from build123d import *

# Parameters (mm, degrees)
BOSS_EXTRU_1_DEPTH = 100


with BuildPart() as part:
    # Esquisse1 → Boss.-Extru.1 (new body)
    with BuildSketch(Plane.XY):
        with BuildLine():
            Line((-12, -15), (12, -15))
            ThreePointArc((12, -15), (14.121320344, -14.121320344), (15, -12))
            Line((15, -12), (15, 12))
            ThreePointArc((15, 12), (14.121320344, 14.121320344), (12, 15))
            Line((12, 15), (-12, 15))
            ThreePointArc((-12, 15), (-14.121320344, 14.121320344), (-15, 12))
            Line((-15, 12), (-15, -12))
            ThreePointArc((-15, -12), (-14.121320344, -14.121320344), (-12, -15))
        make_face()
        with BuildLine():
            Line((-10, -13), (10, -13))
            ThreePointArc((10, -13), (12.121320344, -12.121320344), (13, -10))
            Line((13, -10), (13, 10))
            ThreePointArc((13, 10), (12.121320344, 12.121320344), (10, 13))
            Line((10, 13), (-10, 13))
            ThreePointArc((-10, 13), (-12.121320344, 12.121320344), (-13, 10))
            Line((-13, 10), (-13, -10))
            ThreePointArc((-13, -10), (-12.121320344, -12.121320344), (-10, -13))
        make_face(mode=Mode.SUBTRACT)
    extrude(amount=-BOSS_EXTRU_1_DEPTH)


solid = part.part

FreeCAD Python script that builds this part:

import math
import FreeCAD as App
import Part
import Sketcher

V = App.Vector

doc = App.newDocument("Part")
body = doc.addObject("PartDesign::Body", "Body")

sketch1 = body.newObject("Sketcher::SketchObject", "Sketch")
sketch1.AttachmentSupport = (doc.getObject("XY_Plane"), [""])
sketch1.MapMode = "FlatFace"
sketch1.addGeometry([
    Part.LineSegment(V(-12, -15, 0), V(12, -15, 0)),
    Part.ArcOfCircle(Part.Circle(V(12, -12, 0), V(0, 0, 1), 3), math.radians(-90), math.radians(0)),
    Part.LineSegment(V(15, -12, 0), V(15, 12, 0)),
    Part.ArcOfCircle(Part.Circle(V(12, 12, 0), V(0, 0, 1), 3), math.radians(0), math.radians(90)),
    Part.LineSegment(V(12, 15, 0), V(-12, 15, 0)),
    Part.ArcOfCircle(Part.Circle(V(-12, 12, 0), V(0, 0, 1), 3), math.radians(90), math.radians(180)),
    Part.LineSegment(V(-15, 12, 0), V(-15, -12, 0)),
    Part.ArcOfCircle(Part.Circle(V(-12, -12, 0), V(0, 0, 1), 3), math.radians(180), math.radians(270)),
    Part.LineSegment(V(10, -13, 0), V(-10, -13, 0)),
    Part.ArcOfCircle(Part.Circle(V(-10, -10, 0), V(0, 0, 1), 3), math.radians(180), math.radians(270)),
    Part.LineSegment(V(-13, -10, 0), V(-13, 10, 0)),
    Part.ArcOfCircle(Part.Circle(V(-10, 10, 0), V(0, 0, 1), 3), math.radians(90), math.radians(180)),
    Part.LineSegment(V(-10, 13, 0), V(10, 13, 0)),
    Part.ArcOfCircle(Part.Circle(V(10, 10, 0), V(0, 0, 1), 3), math.radians(0), math.radians(90)),
    Part.LineSegment(V(13, 10, 0), V(13, -10, 0)),
    Part.ArcOfCircle(Part.Circle(V(10, -10, 0), V(0, 0, 1), 3), math.radians(-90), math.radians(0)),
], False)
sketch1.addConstraint([
    Sketcher.Constraint("Tangent", 0, 2, 1, 1),
    Sketcher.Constraint("Tangent", 1, 2, 2, 1),
    Sketcher.Constraint("Tangent", 2, 2, 3, 1),
    Sketcher.Constraint("Tangent", 3, 2, 4, 1),
    Sketcher.Constraint("Tangent", 4, 2, 5, 1),
    Sketcher.Constraint("Tangent", 5, 2, 6, 1),
    Sketcher.Constraint("Tangent", 6, 2, 7, 1),
    Sketcher.Constraint("Tangent", 7, 2, 0, 1),
    Sketcher.Constraint("Tangent", 8, 2, 9, 2),
    Sketcher.Constraint("Tangent", 9, 1, 10, 1),
    Sketcher.Constraint("Tangent", 10, 2, 11, 2),
    Sketcher.Constraint("Tangent", 11, 1, 12, 1),
    Sketcher.Constraint("Tangent", 12, 2, 13, 2),
    Sketcher.Constraint("Tangent", 13, 1, 14, 1),
    Sketcher.Constraint("Tangent", 14, 2, 15, 2),
    Sketcher.Constraint("Tangent", 15, 1, 8, 1),
    Sketcher.Constraint("Horizontal", 0),
    Sketcher.Constraint("Vertical", 2),
    Sketcher.Constraint("Horizontal", 4),
    Sketcher.Constraint("Vertical", 6),
    Sketcher.Constraint("Horizontal", 8),
    Sketcher.Constraint("Vertical", 10),
    Sketcher.Constraint("Horizontal", 12),
    Sketcher.Constraint("Vertical", 14),
    Sketcher.Constraint("Equal", 1, 3),
    Sketcher.Constraint("Equal", 3, 5),
    Sketcher.Constraint("Equal", 5, 7),
    Sketcher.Constraint("Equal", 7, 9),
    Sketcher.Constraint("Equal", 9, 11),
    Sketcher.Constraint("Equal", 11, 13),
    Sketcher.Constraint("Equal", 13, 15),
    Sketcher.Constraint("Symmetric", 1, 3, 5, 3, -1, 1),
    Sketcher.Constraint("Symmetric", 9, 3, 13, 3, -1, 1),
    Sketcher.Constraint("Equal", 4, 2),
    Sketcher.Constraint("Equal", 12, 10),
    Sketcher.Constraint("Radius", 1, 3.0),
    Sketcher.Constraint("DistanceX", 0, 1, 0, 2, 24.0),
    Sketcher.Constraint("DistanceX", 8, 2, 8, 1, 20.0),
])
pad1 = body.newObject("PartDesign::Pad", "Pad")
pad1.Profile = sketch1
pad1.Length = 100
pad1.Reversed = True

doc.recompute()
